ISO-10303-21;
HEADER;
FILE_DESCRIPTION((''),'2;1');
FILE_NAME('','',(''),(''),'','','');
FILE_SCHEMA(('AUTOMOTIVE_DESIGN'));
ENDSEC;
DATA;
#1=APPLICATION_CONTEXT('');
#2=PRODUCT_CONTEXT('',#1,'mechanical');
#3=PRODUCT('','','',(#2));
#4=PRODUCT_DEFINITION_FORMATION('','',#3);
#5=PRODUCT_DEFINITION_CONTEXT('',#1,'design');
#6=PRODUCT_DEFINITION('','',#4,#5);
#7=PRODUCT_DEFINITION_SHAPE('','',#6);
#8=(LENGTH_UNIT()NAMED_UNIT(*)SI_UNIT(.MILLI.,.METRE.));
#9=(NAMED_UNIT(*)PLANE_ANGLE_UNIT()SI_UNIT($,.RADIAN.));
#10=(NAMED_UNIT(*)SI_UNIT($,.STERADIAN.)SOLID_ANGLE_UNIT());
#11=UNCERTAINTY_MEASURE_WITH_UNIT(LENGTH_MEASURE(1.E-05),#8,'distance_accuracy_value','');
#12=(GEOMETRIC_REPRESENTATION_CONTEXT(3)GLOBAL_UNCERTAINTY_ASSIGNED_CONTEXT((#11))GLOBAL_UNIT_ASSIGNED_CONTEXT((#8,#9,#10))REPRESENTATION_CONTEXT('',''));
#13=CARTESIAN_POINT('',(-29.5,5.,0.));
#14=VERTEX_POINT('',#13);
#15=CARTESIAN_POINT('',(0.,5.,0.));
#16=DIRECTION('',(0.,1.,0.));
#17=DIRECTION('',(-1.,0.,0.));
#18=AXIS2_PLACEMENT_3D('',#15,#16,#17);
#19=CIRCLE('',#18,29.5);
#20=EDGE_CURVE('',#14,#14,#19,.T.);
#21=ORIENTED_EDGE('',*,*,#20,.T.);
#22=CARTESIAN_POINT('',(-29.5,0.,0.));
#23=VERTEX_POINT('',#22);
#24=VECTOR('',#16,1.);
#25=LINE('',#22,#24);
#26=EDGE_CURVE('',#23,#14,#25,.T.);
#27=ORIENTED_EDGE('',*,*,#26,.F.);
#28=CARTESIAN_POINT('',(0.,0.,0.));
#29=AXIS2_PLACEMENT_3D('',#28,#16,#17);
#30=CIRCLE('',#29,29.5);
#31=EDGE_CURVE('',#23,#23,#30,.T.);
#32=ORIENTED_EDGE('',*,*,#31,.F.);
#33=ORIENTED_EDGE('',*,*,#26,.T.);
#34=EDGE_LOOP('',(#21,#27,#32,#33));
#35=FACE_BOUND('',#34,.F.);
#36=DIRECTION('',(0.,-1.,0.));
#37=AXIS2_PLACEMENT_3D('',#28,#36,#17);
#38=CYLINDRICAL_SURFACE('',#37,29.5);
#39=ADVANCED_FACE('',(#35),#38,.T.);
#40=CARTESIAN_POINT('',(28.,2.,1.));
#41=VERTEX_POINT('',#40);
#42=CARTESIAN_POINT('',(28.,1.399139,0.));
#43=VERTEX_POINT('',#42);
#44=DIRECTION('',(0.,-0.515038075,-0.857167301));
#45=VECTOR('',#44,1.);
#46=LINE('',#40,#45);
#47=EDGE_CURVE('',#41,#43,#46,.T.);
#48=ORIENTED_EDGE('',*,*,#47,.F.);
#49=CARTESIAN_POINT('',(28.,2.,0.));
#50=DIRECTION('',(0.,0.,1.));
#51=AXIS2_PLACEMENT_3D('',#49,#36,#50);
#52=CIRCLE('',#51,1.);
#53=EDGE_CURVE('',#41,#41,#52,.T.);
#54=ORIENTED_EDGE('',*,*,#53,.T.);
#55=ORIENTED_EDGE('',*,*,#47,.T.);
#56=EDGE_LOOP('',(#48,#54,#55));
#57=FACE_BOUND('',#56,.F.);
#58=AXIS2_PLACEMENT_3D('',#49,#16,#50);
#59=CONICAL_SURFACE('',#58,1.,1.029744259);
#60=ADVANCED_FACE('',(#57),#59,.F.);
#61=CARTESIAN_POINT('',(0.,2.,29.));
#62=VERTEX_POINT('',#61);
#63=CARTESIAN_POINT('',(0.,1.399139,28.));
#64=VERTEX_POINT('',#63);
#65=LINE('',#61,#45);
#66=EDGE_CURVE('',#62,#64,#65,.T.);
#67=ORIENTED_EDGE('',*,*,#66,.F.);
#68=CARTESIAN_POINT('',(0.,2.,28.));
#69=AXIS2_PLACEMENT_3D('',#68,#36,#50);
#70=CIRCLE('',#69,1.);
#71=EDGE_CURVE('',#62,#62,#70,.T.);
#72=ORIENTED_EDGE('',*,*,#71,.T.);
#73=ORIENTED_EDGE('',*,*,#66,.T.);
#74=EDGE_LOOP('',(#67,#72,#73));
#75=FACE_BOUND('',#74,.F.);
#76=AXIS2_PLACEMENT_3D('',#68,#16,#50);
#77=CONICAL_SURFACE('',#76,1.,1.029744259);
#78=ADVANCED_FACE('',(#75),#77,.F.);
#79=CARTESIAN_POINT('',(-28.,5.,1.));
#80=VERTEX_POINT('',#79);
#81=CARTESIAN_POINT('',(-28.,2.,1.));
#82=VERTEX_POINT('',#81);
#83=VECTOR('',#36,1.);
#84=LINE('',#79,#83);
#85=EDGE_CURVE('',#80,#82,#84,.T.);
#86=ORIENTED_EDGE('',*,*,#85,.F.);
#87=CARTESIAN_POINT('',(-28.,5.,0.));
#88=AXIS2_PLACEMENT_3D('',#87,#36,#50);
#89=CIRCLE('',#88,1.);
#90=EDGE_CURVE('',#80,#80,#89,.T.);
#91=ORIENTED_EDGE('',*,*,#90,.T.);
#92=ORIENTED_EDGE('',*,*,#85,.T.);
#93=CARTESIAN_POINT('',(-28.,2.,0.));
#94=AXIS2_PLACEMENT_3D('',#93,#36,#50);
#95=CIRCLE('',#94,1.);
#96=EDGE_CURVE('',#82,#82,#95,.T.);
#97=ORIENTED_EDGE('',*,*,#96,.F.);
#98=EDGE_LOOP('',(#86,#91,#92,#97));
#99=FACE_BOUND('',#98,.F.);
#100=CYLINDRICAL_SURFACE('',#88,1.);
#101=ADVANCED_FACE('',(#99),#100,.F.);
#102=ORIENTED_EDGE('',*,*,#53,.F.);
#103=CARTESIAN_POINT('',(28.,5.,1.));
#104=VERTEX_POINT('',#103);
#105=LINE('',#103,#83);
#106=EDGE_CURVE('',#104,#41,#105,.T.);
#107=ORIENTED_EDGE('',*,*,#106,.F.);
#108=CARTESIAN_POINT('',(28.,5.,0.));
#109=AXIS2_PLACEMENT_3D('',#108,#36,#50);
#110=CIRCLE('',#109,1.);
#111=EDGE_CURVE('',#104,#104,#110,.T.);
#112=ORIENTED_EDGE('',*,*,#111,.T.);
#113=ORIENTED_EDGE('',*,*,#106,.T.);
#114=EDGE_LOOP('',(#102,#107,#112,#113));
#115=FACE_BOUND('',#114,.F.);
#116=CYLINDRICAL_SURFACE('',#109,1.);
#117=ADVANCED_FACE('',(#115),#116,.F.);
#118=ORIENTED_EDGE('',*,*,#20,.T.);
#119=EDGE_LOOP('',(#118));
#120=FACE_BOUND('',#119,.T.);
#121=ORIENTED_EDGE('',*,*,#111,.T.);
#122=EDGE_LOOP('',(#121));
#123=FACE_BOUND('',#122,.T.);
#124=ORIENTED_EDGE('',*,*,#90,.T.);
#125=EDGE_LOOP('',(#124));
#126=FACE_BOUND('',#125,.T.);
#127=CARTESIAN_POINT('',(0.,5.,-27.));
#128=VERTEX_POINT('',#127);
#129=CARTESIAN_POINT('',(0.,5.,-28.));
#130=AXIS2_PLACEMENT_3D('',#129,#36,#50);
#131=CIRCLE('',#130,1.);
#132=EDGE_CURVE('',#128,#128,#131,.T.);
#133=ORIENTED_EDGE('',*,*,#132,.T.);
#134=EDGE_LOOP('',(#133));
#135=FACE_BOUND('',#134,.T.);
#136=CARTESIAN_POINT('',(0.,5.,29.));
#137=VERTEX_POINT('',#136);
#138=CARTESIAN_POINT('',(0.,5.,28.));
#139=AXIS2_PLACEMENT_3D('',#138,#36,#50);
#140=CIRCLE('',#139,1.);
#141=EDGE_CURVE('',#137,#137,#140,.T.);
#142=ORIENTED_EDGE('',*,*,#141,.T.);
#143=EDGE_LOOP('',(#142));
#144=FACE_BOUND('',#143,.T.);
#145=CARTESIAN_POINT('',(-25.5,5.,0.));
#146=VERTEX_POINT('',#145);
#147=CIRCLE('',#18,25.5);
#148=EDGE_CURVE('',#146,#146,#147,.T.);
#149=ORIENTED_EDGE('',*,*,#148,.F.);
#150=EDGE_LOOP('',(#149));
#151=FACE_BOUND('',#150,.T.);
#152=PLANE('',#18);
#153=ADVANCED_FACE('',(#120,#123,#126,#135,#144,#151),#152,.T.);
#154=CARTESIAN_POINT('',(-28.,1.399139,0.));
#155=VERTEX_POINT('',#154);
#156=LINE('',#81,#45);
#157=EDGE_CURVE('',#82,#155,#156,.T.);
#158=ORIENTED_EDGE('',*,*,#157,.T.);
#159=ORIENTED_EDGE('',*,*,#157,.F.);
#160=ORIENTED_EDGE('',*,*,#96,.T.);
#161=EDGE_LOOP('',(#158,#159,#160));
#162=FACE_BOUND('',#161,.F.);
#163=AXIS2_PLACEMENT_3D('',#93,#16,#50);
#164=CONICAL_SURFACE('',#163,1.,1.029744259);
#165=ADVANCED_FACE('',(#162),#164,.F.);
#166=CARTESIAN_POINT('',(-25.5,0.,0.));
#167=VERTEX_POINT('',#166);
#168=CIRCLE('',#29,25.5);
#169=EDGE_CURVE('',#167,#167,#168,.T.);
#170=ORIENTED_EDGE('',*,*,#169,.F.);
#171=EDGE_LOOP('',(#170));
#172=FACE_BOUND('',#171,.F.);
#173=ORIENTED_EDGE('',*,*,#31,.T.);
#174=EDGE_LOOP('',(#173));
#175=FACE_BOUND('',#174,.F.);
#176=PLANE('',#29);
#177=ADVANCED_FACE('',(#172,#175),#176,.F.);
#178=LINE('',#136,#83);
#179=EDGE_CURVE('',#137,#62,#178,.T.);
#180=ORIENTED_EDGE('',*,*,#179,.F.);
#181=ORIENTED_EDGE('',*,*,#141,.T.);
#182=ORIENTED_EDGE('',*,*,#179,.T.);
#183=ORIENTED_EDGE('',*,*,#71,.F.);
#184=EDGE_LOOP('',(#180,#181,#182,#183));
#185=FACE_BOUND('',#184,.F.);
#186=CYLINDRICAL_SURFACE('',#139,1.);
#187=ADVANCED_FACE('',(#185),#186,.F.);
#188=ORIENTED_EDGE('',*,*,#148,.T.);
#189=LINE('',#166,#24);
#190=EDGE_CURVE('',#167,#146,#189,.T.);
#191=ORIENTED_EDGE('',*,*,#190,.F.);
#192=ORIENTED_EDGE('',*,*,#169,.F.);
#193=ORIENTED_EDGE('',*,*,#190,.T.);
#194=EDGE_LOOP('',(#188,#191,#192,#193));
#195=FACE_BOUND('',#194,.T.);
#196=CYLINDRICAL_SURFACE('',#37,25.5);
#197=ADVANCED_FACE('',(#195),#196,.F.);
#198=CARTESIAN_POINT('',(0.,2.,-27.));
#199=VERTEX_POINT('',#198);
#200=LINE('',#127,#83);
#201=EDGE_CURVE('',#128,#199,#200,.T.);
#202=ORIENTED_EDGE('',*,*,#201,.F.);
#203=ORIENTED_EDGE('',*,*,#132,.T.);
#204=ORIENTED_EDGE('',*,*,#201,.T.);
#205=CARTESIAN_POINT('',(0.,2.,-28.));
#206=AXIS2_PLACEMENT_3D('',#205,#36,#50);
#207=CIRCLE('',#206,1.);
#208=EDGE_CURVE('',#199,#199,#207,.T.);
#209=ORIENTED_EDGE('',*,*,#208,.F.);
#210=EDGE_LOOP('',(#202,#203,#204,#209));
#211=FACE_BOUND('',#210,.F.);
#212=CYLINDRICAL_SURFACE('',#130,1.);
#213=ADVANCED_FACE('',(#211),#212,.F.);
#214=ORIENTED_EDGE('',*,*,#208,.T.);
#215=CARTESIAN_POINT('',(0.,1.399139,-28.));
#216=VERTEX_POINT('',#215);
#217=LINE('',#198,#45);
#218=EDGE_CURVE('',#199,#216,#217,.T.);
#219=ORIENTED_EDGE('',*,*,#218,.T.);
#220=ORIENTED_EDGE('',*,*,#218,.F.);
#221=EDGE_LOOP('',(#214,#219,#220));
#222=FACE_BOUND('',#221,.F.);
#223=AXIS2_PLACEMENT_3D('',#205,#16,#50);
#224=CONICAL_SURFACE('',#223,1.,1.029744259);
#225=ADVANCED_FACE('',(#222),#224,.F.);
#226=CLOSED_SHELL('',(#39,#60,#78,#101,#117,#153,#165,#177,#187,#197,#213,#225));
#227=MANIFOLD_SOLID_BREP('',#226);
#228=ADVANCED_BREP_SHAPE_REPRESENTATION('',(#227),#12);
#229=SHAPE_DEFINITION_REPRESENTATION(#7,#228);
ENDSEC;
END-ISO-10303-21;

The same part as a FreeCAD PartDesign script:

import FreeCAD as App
import Part
import Sketcher

doc = App.newDocument("Part")
body = doc.addObject("PartDesign::Body", "Body")

# Sketch on XZ plane
sketch1 = body.newObject("Sketcher::SketchObject", "Sketch")
sketch1.AttachmentSupport = (doc.getObject("XZ_Plane"), [""])
sketch1.MapMode = "FlatFace"
sketch1.addGeometry([
    Part.Circle(App.Vector(0, 0, 0), App.Vector(0, 0, 1), 29.5),
    Part.Circle(App.Vector(0, 0, 0), App.Vector(0, 0, 1), 25.5),
], False)
sketch1.addConstraint([
    Sketcher.Constraint("Coincident", 0, 3, -1, 1),
    Sketcher.Constraint("Coincident", 1, 3, -1, 1),
    Sketcher.Constraint("Diameter", 0, 59.0),
    Sketcher.Constraint("Diameter", 1, 51.0),
])
pad1 = body.newObject("PartDesign::Pad", "Pad")
pad1.Profile = sketch1
pad1.Length = 5
pad1.Reversed = True

# Sketch on XZ plane
sketch2 = body.newObject("Sketcher::SketchObject", "Sketch001")
sketch2.AttachmentSupport = (doc.getObject("XZ_Plane"), [""])
sketch2.MapMode = "FlatFace"
sketch2.AttachmentOffset = App.Placement(App.Vector(0, 0, -5), App.Rotation())
sketch2.addGeometry(Part.Circle(App.Vector(0, 28, 0), App.Vector(0, 0, 1), 1), False)
sketch2.addConstraint([
    Sketcher.Constraint("PointOnObject", 0, 3, -2),
    Sketcher.Constraint("Diameter", 0, 2.0),
    Sketcher.Constraint("DistanceY", -1, 1, 0, 3, 28.0),
])
doc.recompute()
hole = body.newObject("PartDesign::Hole", "Hole")
hole.Profile = sketch2
hole.ThreadType = "None"
hole.Diameter = 2
hole.DepthType = "Dimension"
hole.Depth = 3
hole.DrillPoint = "Angled"
hole.DrillPointAngle = 118
hole.Reversed = True

# Sketch on XZ plane
sketch3 = body.newObject("Sketcher::SketchObject", "Sketch002")
sketch3.AttachmentSupport = (doc.getObject("XZ_Plane"), [""])
sketch3.MapMode = "FlatFace"
sketch3.AttachmentOffset = App.Placement(App.Vector(0, 0, -5), App.Rotation())
sketch3.addGeometry(Part.Circle(App.Vector(-28, 0, 0), App.Vector(0, 0, 1), 1), False)
sketch3.addConstraint([
    Sketcher.Constraint("PointOnObject", 0, 3, -1),
    Sketcher.Constraint("Diameter", 0, 2.0),
    Sketcher.Constraint("DistanceX", 0, 3, -1, 1, 28.0),
])
doc.recompute()
hole2 = body.newObject("PartDesign::Hole", "Hole001")
hole2.Profile = sketch3
hole2.ThreadType = "None"
hole2.Diameter = 2
hole2.DepthType = "Dimension"
hole2.Depth = 3
hole2.DrillPoint = "Angled"
hole2.DrillPointAngle = 118
hole2.Reversed = True

# Sketch on XZ plane
sketch4 = body.newObject("Sketcher::SketchObject", "Sketch003")
sketch4.AttachmentSupport = (doc.getObject("XZ_Plane"), [""])
sketch4.MapMode = "FlatFace"
sketch4.AttachmentOffset = App.Placement(App.Vector(0, 0, -5), App.Rotation())
sketch4.addGeometry(Part.Circle(App.Vector(0, -28, 0), App.Vector(0, 0, 1), 1), False)
sketch4.addConstraint([
    Sketcher.Constraint("PointOnObject", 0, 3, -2),
    Sketcher.Constraint("Diameter", 0, 2.0),
    Sketcher.Constraint("DistanceY", 0, 3, -1, 1, 28.0),
])
doc.recompute()
hole3 = body.newObject("PartDesign::Hole", "Hole002")
hole3.Profile = sketch4
hole3.ThreadType = "None"
hole3.Diameter = 2
hole3.DepthType = "Dimension"
hole3.Depth = 3
hole3.DrillPoint = "Angled"
hole3.DrillPointAngle = 118
hole3.Reversed = True

# Sketch on XZ plane
sketch5 = body.newObject("Sketcher::SketchObject", "Sketch004")
sketch5.AttachmentSupport = (doc.getObject("XZ_Plane"), [""])
sketch5.MapMode = "FlatFace"
sketch5.AttachmentOffset = App.Placement(App.Vector(0, 0, -5), App.Rotation())
sketch5.addGeometry(Part.Circle(App.Vector(28, 0, 0), App.Vector(0, 0, 1), 1), False)
sketch5.addConstraint([
    Sketcher.Constraint("PointOnObject", 0, 3, -1),
    Sketcher.Constraint("Diameter", 0, 2.0),
    Sketcher.Constraint("DistanceX", -1, 1, 0, 3, 28.0),
])
doc.recompute()
hole4 = body.newObject("PartDesign::Hole", "Hole003")
hole4.Profile = sketch5
hole4.ThreadType = "None"
hole4.Diameter = 2
hole4.DepthType = "Dimension"
hole4.Depth = 3
hole4.DrillPoint = "Angled"
hole4.DrillPointAngle = 118
hole4.Reversed = True

doc.recompute()
